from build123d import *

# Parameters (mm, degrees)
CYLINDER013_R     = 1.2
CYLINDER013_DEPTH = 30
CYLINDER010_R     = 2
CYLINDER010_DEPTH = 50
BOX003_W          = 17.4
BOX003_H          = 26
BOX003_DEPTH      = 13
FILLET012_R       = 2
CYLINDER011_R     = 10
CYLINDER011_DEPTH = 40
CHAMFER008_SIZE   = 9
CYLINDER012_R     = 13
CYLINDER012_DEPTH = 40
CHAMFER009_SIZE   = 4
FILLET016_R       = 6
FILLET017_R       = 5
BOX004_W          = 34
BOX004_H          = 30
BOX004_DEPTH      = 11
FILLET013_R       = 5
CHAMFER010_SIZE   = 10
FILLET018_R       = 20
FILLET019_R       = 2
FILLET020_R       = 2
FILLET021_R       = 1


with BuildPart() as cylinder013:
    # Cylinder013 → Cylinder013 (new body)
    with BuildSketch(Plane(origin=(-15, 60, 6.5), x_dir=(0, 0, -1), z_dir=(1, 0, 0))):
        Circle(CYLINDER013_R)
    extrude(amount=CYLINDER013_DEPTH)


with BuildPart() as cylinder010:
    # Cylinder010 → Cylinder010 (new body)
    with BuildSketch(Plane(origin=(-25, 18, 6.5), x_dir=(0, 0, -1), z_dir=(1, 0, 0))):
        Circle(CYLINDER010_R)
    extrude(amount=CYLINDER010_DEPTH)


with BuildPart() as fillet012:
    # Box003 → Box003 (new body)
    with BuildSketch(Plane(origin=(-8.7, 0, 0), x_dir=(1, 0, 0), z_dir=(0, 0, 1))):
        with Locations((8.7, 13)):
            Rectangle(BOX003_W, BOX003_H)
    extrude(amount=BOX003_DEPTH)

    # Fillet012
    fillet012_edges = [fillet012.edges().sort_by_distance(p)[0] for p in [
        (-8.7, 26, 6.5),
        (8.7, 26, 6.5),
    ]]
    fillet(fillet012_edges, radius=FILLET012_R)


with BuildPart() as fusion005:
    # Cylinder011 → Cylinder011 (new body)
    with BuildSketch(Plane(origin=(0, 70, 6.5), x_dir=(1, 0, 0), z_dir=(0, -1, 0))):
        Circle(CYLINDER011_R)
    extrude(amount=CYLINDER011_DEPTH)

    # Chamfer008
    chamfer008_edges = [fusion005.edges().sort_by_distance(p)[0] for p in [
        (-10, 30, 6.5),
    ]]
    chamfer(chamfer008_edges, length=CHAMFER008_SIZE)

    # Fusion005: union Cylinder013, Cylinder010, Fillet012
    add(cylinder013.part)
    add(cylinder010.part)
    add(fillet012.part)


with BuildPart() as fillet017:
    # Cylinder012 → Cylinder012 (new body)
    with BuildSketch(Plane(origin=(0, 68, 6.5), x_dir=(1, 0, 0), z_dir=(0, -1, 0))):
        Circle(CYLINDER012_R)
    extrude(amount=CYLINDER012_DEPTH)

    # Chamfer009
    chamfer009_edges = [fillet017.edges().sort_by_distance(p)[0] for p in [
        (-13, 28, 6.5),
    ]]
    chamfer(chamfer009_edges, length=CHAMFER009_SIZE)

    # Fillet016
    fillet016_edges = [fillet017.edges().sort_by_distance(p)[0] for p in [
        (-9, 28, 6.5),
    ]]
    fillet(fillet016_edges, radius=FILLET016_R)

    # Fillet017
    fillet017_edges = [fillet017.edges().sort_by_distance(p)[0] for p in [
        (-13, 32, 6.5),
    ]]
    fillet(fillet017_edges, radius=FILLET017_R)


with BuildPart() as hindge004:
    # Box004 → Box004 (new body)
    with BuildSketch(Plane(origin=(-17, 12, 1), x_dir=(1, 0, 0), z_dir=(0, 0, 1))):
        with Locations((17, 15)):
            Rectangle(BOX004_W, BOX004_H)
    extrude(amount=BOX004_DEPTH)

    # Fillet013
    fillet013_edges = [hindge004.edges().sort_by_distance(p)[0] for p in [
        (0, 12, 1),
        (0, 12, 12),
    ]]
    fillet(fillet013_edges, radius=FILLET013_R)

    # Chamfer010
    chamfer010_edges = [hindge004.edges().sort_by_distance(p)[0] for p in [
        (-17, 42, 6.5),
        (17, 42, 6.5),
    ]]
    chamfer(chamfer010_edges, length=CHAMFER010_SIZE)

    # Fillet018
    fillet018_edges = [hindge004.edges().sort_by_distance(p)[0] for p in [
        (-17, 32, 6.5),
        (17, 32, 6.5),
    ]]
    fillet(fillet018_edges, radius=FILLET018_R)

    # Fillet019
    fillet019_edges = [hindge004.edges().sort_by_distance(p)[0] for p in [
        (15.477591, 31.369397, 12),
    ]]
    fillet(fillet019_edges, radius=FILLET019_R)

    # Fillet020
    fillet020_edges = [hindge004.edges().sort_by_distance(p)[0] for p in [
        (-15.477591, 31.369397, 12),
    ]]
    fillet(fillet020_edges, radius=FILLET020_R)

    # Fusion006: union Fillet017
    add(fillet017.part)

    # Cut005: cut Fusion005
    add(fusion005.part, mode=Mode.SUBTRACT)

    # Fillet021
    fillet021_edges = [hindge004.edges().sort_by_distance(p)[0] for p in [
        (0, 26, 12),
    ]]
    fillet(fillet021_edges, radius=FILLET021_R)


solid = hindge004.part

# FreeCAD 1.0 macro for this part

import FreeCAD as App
import Part
import Sketcher
from FreeCAD import Vector


def edges_at(feature, points):
    """Names of the edges that pass closest to the given points."""
    edges = feature.Shape.Edges
    near = lambda p: min(range(len(edges)), key=lambda i: edges[i].distToShape(Part.Vertex(*p))[0])
    return sorted({f"Edge{near(p) + 1}" for p in points})


def add_polygon(sketch, points):
    """Adds a closed chain of lines whose ends are joined by coincident constraints."""
    first, n = sketch.GeometryCount, len(points)
    for a, b in zip(points, points[1:] + points[:1]):
        sketch.addGeometry(Part.LineSegment(App.Vector(*a, 0), App.Vector(*b, 0)), False)
    for i in range(n):
        sketch.addConstraint(Sketcher.Constraint("Coincident", first + i, 2, first + (i + 1) % n, 1))

doc = App.newDocument("Part")
body = doc.addObject("PartDesign::Body", "Body")

# Sketch on YZ plane
sketch1 = body.newObject("Sketcher::SketchObject", "Sketch")
sketch1.AttachmentSupport = (doc.getObject("YZ_Plane"), [""])
sketch1.MapMode = "FlatFace"
sketch1.AttachmentOffset = App.Placement(Vector(0, 0, -15), App.Rotation())
sketch1.addGeometry(Part.Circle(Vector(60, 6.5, 0), Vector(0, 0, 1), 1.2), False)
sketch1.addConstraint(Sketcher.Constraint("Diameter", 0, 2.4))
sketch1.addConstraint(Sketcher.Constraint("DistanceX", -1, 1, 0, 3, 60.0))
sketch1.addConstraint(Sketcher.Constraint("DistanceY", -1, 1, 0, 3, 6.5))
pad1 = body.newObject("PartDesign::Pad", "Pad")
pad1.Profile = sketch1
pad1.Length = 30
body2 = doc.addObject("PartDesign::Body", "Body001")

# Sketch on YZ plane
sketch2 = body2.newObject("Sketcher::SketchObject", "Sketch001")
sketch2.AttachmentSupport = (doc.getObject("YZ_Plane001"), [""])
sketch2.MapMode = "FlatFace"
sketch2.AttachmentOffset = App.Placement(Vector(0, 0, -25), App.Rotation())
sketch2.addGeometry(Part.Circle(Vector(18, 6.5, 0), Vector(0, 0, 1), 2), False)
sketch2.addConstraint(Sketcher.Constraint("Diameter", 0, 4.0))
sketch2.addConstraint(Sketcher.Constraint("DistanceX", -1, 1, 0, 3, 18.0))
sketch2.addConstraint(Sketcher.Constraint("DistanceY", -1, 1, 0, 3, 6.5))
pad2 = body2.newObject("PartDesign::Pad", "Pad001")
pad2.Profile = sketch2
pad2.Length = 50
body3 = doc.addObject("PartDesign::Body", "Body002")

# Sketch on XY plane
sketch3 = body3.newObject("Sketcher::SketchObject", "Sketch002")
sketch3.AttachmentSupport = (doc.getObject("XY_Plane002"), [""])
sketch3.MapMode = "FlatFace"
add_polygon(sketch3, [(-9, 26), (-9, 0), (9, 0), (9, 26)])  # lines 0-3
sketch3.addConstraint(Sketcher.Constraint("Vertical", 0))
sketch3.addConstraint(Sketcher.Constraint("Horizontal", 1))
sketch3.addConstraint(Sketcher.Constraint("Vertical", 2))
sketch3.addConstraint(Sketcher.Constraint("Horizontal", 3))
sketch3.addConstraint(Sketcher.Constraint("Symmetric", 0, 2, 1, 2, -1, 1))
sketch3.addConstraint(Sketcher.Constraint("DistanceY", 0, 2, 0, 1, 26.0))
sketch3.addConstraint(Sketcher.Constraint("DistanceX", 1, 1, 1, 2, 17.4))
pad3 = body3.newObject("PartDesign::Pad", "Pad002")
pad3.Profile = sketch3
pad3.Length = 13
doc.recompute()

fillet = body3.newObject("PartDesign::Fillet", "Fillet")
fillet.Base = (pad3, edges_at(pad3, [(-8.7, 26, 6.5), (8.7, 26, 6.5)]))
fillet.Radius = 2
body4 = doc.addObject("PartDesign::Body", "Body003")
body4.AllowCompound = True

# Sketch on XZ plane
sketch4 = body4.newObject("Sketcher::SketchObject", "Sketch003")
sketch4.AttachmentSupport = (doc.getObject("XZ_Plane003"), [""])
sketch4.MapMode = "FlatFace"
sketch4.AttachmentOffset = App.Placement(Vector(0, 0, -70), App.Rotation())
sketch4.addGeometry(Part.Circle(Vector(0, 6, 0), Vector(0, 0, 1), 10), False)
sketch4.addConstraint(Sketcher.Constraint("PointOnObject", 0, 3, -2))
sketch4.addConstraint(Sketcher.Constraint("Diameter", 0, 20.0))
sketch4.addConstraint(Sketcher.Constraint("DistanceY", -1, 1, 0, 3, 6.5))
pad4 = body4.newObject("PartDesign::Pad", "Pad003")
pad4.Profile = sketch4
pad4.Length = 40
doc.recompute()

chamfer = body4.newObject("PartDesign::Chamfer", "Chamfer")
chamfer.Base = (pad4, edges_at(pad4, [(-10, 30, 6.5)]))
chamfer.Size = 9
doc.recompute()

boolean = body4.newObject("PartDesign::Boolean", "Boolean")
boolean.Type = "Fuse"
boolean.addObjects([body])
doc.recompute()

boolean2 = body4.newObject("PartDesign::Boolean", "Boolean001")
boolean2.Type = "Fuse"
boolean2.addObjects([body2])
doc.recompute()

boolean3 = body4.newObject("PartDesign::Boolean", "Boolean002")
boolean3.Type = "Fuse"
boolean3.addObjects([body3])
body5 = doc.addObject("PartDesign::Body", "Body004")

# Sketch on XZ plane
sketch5 = body5.newObject("Sketcher::SketchObject", "Sketch004")
sketch5.AttachmentSupport = (doc.getObject("XZ_Plane004"), [""])
sketch5.MapMode = "FlatFace"
sketch5.AttachmentOffset = App.Placement(Vector(0, 0, -68), App.Rotation())
sketch5.addGeometry(Part.Circle(Vector(0, 6, 0), Vector(0, 0, 1), 13), False)
sketch5.addConstraint(Sketcher.Constraint("PointOnObject", 0, 3, -2))
sketch5.addConstraint(Sketcher.Constraint("Diameter", 0, 26.0))
sketch5.addConstraint(Sketcher.Constraint("DistanceY", -1, 1, 0, 3, 6.5))
pad5 = body5.newObject("PartDesign::Pad", "Pad004")
pad5.Profile = sketch5
pad5.Length = 40
doc.recompute()

chamfer2 = body5.newObject("PartDesign::Chamfer", "Chamfer001")
chamfer2.Base = (pad5, edges_at(pad5, [(-13, 28, 6.5)]))
chamfer2.Size = 4
doc.recompute()

fillet2 = body5.newObject("PartDesign::Fillet", "Fillet001")
fillet2.Base = (chamfer2, edges_at(chamfer2, [(-9, 28, 6.5)]))
fillet2.Radius = 6
doc.recompute()

fillet3 = body5.newObject("PartDesign::Fillet", "Fillet002")
fillet3.Base = (fillet2, edges_at(fillet2, [(-13, 32, 6.5)]))
fillet3.Radius = 5
body6 = doc.addObject("PartDesign::Body", "Body005")

# Sketch on XY plane
sketch6 = body6.newObject("Sketcher::SketchObject", "Sketch005")
sketch6.AttachmentSupport = (doc.getObject("XY_Plane005"), [""])
sketch6.MapMode = "FlatFace"
sketch6.AttachmentOffset = App.Placement(Vector(0, 0, 1), App.Rotation())
add_polygon(sketch6, [(-17, 42), (-17, 12), (17, 12), (17, 42)])  # lines 0-3
sketch6.addConstraint(Sketcher.Constraint("Vertical", 0))
sketch6.addConstraint(Sketcher.Constraint("Horizontal", 1))
sketch6.addConstraint(Sketcher.Constraint("Vertical", 2))
sketch6.addConstraint(Sketcher.Constraint("Horizontal", 3))
sketch6.addConstraint(Sketcher.Constraint("DistanceX", 1, 1, 1, 2, 34.0))
sketch6.addConstraint(Sketcher.Constraint("DistanceY", 0, 2, 0, 1, 30.0))
sketch6.addConstraint(Sketcher.Constraint("DistanceX", 0, 2, -1, 1, 17.0))
sketch6.addConstraint(Sketcher.Constraint("DistanceY", -1, 1, 0, 2, 12.0))
pad6 = body6.newObject("PartDesign::Pad", "Pad005")
pad6.Profile = sketch6
pad6.Length = 11
doc.recompute()

fillet4 = body6.newObject("PartDesign::Fillet", "Fillet003")
fillet4.Base = (pad6, edges_at(pad6, [(0, 12, 1), (0, 12, 12)]))
fillet4.Radius = 5
doc.recompute()

chamfer3 = body6.newObject("PartDesign::Chamfer", "Chamfer002")
chamfer3.Base = (fillet4, edges_at(fillet4, [(-17, 42, 6.5), (17, 42, 6.5)]))
chamfer3.Size = 10
doc.recompute()

fillet5 = body6.newObject("PartDesign::Fillet", "Fillet004")
fillet5.Base = (chamfer3, edges_at(chamfer3, [(-17, 32, 6.5), (17, 32, 6.5)]))
fillet5.Radius = 20
doc.recompute()

fillet6 = body6.newObject("PartDesign::Fillet", "Fillet005")
fillet6.Base = (fillet5, edges_at(fillet5, [(15.478, 31.369, 12)]))
fillet6.Radius = 2
doc.recompute()

fillet7 = body6.newObject("PartDesign::Fillet", "Fillet006")
fillet7.Base = (fillet6, edges_at(fillet6, [(-15.478, 31.369, 12)]))
fillet7.Radius = 2
doc.recompute()

boolean4 = body6.newObject("PartDesign::Boolean", "Boolean003")
boolean4.Type = "Fuse"
boolean4.addObjects([body5])
doc.recompute()

boolean5 = body6.newObject("PartDesign::Boolean", "Boolean004")
boolean5.Type = "Cut"
boolean5.addObjects([body4])
doc.recompute()

fillet8 = body6.newObject("PartDesign::Fillet", "Fillet007")
fillet8.Base = (boolean5, edges_at(boolean5, [(0, 26, 12)]))
fillet8.Radius = 1

doc.recompute()
